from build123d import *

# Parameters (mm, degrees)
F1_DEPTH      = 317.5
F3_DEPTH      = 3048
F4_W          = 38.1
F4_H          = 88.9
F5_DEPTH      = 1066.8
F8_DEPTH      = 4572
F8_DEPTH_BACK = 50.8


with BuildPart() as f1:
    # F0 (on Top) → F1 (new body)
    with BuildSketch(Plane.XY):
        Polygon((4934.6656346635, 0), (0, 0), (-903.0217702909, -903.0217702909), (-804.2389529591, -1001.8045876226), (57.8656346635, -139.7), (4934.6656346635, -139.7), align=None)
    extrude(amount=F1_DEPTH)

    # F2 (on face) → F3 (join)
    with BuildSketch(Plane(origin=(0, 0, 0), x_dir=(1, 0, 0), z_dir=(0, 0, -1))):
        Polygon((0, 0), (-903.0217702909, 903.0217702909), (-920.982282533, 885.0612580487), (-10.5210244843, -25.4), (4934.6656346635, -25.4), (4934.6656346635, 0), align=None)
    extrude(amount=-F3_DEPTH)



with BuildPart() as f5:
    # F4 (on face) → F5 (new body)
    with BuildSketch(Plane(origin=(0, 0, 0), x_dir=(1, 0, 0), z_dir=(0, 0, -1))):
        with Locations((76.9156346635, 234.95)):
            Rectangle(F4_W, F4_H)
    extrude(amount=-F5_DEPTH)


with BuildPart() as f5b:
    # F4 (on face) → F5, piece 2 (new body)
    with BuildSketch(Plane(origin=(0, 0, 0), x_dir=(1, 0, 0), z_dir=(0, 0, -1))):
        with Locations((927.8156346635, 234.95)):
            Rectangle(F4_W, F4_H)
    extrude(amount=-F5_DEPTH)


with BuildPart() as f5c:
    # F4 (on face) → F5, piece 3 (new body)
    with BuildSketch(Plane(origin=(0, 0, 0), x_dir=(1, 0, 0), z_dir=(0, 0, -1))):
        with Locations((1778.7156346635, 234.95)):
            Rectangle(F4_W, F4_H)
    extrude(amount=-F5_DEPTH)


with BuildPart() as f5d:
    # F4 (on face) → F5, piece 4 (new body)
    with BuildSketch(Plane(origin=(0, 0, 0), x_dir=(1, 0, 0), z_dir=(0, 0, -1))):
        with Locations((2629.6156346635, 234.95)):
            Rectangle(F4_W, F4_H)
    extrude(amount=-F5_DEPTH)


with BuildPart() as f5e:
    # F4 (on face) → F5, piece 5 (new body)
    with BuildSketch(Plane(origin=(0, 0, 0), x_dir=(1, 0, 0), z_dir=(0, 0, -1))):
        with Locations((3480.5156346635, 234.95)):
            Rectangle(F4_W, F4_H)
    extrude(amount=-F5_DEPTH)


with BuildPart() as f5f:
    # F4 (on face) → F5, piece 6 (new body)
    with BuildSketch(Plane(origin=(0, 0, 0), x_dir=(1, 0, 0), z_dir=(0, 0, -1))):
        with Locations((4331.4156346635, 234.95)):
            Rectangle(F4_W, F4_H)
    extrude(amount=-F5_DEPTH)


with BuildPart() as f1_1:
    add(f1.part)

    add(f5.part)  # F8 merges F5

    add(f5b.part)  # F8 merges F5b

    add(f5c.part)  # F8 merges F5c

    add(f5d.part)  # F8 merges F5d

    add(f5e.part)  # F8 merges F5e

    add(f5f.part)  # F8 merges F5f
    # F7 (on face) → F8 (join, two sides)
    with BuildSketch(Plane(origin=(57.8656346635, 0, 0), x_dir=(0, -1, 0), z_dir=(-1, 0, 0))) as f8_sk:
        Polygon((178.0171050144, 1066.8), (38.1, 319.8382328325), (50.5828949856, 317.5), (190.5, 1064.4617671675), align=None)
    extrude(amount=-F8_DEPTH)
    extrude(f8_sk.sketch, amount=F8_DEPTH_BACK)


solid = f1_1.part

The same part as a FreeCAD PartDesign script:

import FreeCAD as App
import Part
import Sketcher
Q = App.Units.Quantity

doc = App.newDocument("Part")
body = doc.addObject("PartDesign::Body", "Body")

# Sketch on XY plane
sketch1 = body.newObject("Sketcher::SketchObject", "Sketch")
sketch1.AttachmentSupport = (doc.getObject("XY_Plane"), [""])
sketch1.MapMode = "FlatFace"
sketch1.addGeometry([
    Part.LineSegment(App.Vector(4934.665635, 0, 0), App.Vector(0, 0, 0)),  # 0
    Part.LineSegment(App.Vector(0, 0, 0), App.Vector(-903.02177, -903.02177, 0)),  # 1
    Part.LineSegment(App.Vector(-903.02177, -903.02177, 0), App.Vector(-804.238953, -1001.804588, 0)),  # 2
    Part.LineSegment(App.Vector(-804.238953, -1001.804588, 0), App.Vector(57.865635, -139.7, 0)),  # 3
    Part.LineSegment(App.Vector(57.865635, -139.7, 0), App.Vector(4934.665635, -139.7, 0)),  # 4
    Part.LineSegment(App.Vector(4934.665635, -139.7, 0), App.Vector(4934.665635, 0, 0)),  # 5
], False)
sketch1.addConstraint([
    Sketcher.Constraint("Coincident", 0, 2, 1, 1),
    Sketcher.Constraint("Coincident", 1, 2, 2, 1),
    Sketcher.Constraint("Coincident", 2, 2, 3, 1),
    Sketcher.Constraint("Coincident", 3, 2, 4, 1),
    Sketcher.Constraint("Coincident", 4, 2, 5, 1),
    Sketcher.Constraint("Coincident", 5, 2, 0, 1),
    Sketcher.Constraint("Horizontal", 0),
    Sketcher.Constraint("Horizontal", 4),
    Sketcher.Constraint("Vertical", 5),
    Sketcher.Constraint("Coincident", 0, 2, -1, 1),
    Sketcher.Constraint("Perpendicular", 1, 2),
    Sketcher.Constraint("Perpendicular", 2, 3),
    Sketcher.Constraint("DistanceX", 4, 1, 4, 2, Q("192 in")),
    Sketcher.Constraint("Distance", 3, Q("48 in")),
    Sketcher.Constraint("DistanceY", 5, 1, 5, 2, Q("5.5 in")),
    Sketcher.Constraint("Angle", 1, Q("-135 deg")),
    Sketcher.Constraint("Distance", 2, Q("5.5 in")),
])
pad1 = body.newObject("PartDesign::Pad", "Pad")
pad1.Profile = sketch1
pad1.Length = Q("12.5 in")

# Sketch on XY plane
sketch2 = body.newObject("Sketcher::SketchObject", "Sketch001")
sketch2.AttachmentSupport = (doc.getObject("XY_Plane"), [""])
sketch2.MapMode = "FlatFace"
sketch2.addGeometry([
    Part.LineSegment(App.Vector(0, 0, 0), App.Vector(-903.02177, -903.02177, 0)),  # 0
    Part.LineSegment(App.Vector(-903.02177, -903.02177, 0), App.Vector(-920.982283, -885.061258, 0)),  # 1
    Part.LineSegment(App.Vector(-920.982283, -885.061258, 0), App.Vector(-10.521024, 25.4, 0)),  # 2
    Part.LineSegment(App.Vector(-10.521024, 25.4, 0), App.Vector(4934.665635, 25.4, 0)),  # 3
    Part.LineSegment(App.Vector(4934.665635, 25.4, 0), App.Vector(4934.665635, 0, 0)),  # 4
    Part.LineSegment(App.Vector(4934.665635, 0, 0), App.Vector(0, 0, 0)),  # 5
], False)
sketch2.addConstraint([
    Sketcher.Constraint("Coincident", 0, 2, 1, 1),
    Sketcher.Constraint("Coincident", 1, 2, 2, 1),
    Sketcher.Constraint("Coincident", 2, 2, 3, 1),
    Sketcher.Constraint("Coincident", 3, 2, 4, 1),
    Sketcher.Constraint("Coincident", 4, 2, 5, 1),
    Sketcher.Constraint("Coincident", 5, 2, 0, 1),
    Sketcher.Constraint("Horizontal", 3),
    Sketcher.Constraint("Vertical", 4),
    Sketcher.Constraint("Horizontal", 5),
    Sketcher.Constraint("Coincident", 5, 2, -1, 1),
    Sketcher.Constraint("Perpendicular", 0, 1),
    Sketcher.Constraint("Perpendicular", 1, 2),
    Sketcher.Constraint("DistanceY", 4, 2, 4, 1, Q("1 in")),
    Sketcher.Constraint("Distance", 1, Q("1 in")),
    Sketcher.Constraint("Angle", 0, Q("-135 deg")),
    Sketcher.Constraint("DistanceX", 3, 1, 3, 2, 4945.186659),
    Sketcher.Constraint("Distance", 2, 1287.586659),
])
pad2 = body.newObject("PartDesign::Pad", "Pad001")
pad2.Profile = sketch2
pad2.Length = Q("120 in")
body2 = doc.addObject("PartDesign::Body", "Body001")

# Sketch on XY plane
sketch3 = body2.newObject("Sketcher::SketchObject", "Sketch002")
sketch3.AttachmentSupport = (doc.getObject("XY_Plane001"), [""])
sketch3.MapMode = "FlatFace"
sketch3.addGeometry([
    Part.LineSegment(App.Vector(57.865635, -279.4, 0), App.Vector(57.865635, -190.5, 0)),
    Part.LineSegment(App.Vector(57.865635, -190.5, 0), App.Vector(95.965635, -190.5, 0)),
    Part.LineSegment(App.Vector(95.965635, -190.5, 0), App.Vector(95.965635, -279.4, 0)),
    Part.LineSegment(App.Vector(95.965635, -279.4, 0), App.Vector(57.865635, -279.4, 0)),
], False)
sketch3.addConstraint([
    Sketcher.Constraint("Coincident", 0, 2, 1, 1),
    Sketcher.Constraint("Coincident", 1, 2, 2, 1),
    Sketcher.Constraint("Coincident", 2, 2, 3, 1),
    Sketcher.Constraint("Coincident", 3, 2, 0, 1),
    Sketcher.Constraint("Vertical", 0),
    Sketcher.Constraint("Horizontal", 1),
    Sketcher.Constraint("Vertical", 2),
    Sketcher.Constraint("Horizontal", 3),
    Sketcher.Constraint("DistanceX", 1, 1, 1, 2, Q("1.5 in")),
    Sketcher.Constraint("DistanceY", 0, 1, 0, 2, Q("3.5 in")),
    Sketcher.Constraint("DistanceY", 2, 2, -1, 1, Q("11 in")),
    Sketcher.Constraint("DistanceX", -1, 1, 0, 2, 57.865635),
])
pad3 = body2.newObject("PartDesign::Pad", "Pad002")
pad3.Profile = sketch3
pad3.Length = Q("42 in")
body3 = doc.addObject("PartDesign::Body", "Body002")

# Sketch on XY plane
sketch4 = body3.newObject("Sketcher::SketchObject", "Sketch003")
sketch4.AttachmentSupport = (doc.getObject("XY_Plane002"), [""])
sketch4.MapMode = "FlatFace"
sketch4.addGeometry([
    Part.LineSegment(App.Vector(908.765635, -279.4, 0), App.Vector(908.765635, -190.5, 0)),
    Part.LineSegment(App.Vector(908.765635, -190.5, 0), App.Vector(946.865635, -190.5, 0)),
    Part.LineSegment(App.Vector(946.865635, -190.5, 0), App.Vector(946.865635, -279.4, 0)),
    Part.LineSegment(App.Vector(946.865635, -279.4, 0), App.Vector(908.765635, -279.4, 0)),
], False)
sketch4.addConstraint([
    Sketcher.Constraint("Coincident", 0, 2, 1, 1),
    Sketcher.Constraint("Coincident", 1, 2, 2, 1),
    Sketcher.Constraint("Coincident", 2, 2, 3, 1),
    Sketcher.Constraint("Coincident", 3, 2, 0, 1),
    Sketcher.Constraint("Vertical", 0),
    Sketcher.Constraint("Horizontal", 1),
    Sketcher.Constraint("Vertical", 2),
    Sketcher.Constraint("Horizontal", 3),
    Sketcher.Constraint("DistanceX", 1, 1, 1, 2, Q("1.5 in")),
    Sketcher.Constraint("DistanceY", 0, 1, 0, 2, Q("3.5 in")),
    Sketcher.Constraint("DistanceY", 2, 2, -1, 1, Q("11 in")),
    Sketcher.Constraint("DistanceX", -1, 1, 0, 2, 908.765635),
])
pad4 = body3.newObject("PartDesign::Pad", "Pad003")
pad4.Profile = sketch4
pad4.Length = Q("42 in")
body4 = doc.addObject("PartDesign::Body", "Body003")

# Sketch on XY plane
sketch5 = body4.newObject("Sketcher::SketchObject", "Sketch004")
sketch5.AttachmentSupport = (doc.getObject("XY_Plane003"), [""])
sketch5.MapMode = "FlatFace"
sketch5.addGeometry([
    Part.LineSegment(App.Vector(1759.665635, -279.4, 0), App.Vector(1759.665635, -190.5, 0)),
    Part.LineSegment(App.Vector(1759.665635, -190.5, 0), App.Vector(1797.765635, -190.5, 0)),
    Part.LineSegment(App.Vector(1797.765635, -190.5, 0), App.Vector(1797.765635, -279.4, 0)),
    Part.LineSegment(App.Vector(1797.765635, -279.4, 0), App.Vector(1759.665635, -279.4, 0)),
], False)
sketch5.addConstraint([
    Sketcher.Constraint("Coincident", 0, 2, 1, 1),
    Sketcher.Constraint("Coincident", 1, 2, 2, 1),
    Sketcher.Constraint("Coincident", 2, 2, 3, 1),
    Sketcher.Constraint("Coincident", 3, 2, 0, 1),
    Sketcher.Constraint("Vertical", 0),
    Sketcher.Constraint("Horizontal", 1),
    Sketcher.Constraint("Vertical", 2),
    Sketcher.Constraint("Horizontal", 3),
    Sketcher.Constraint("DistanceX", 1, 1, 1, 2, Q("1.5 in")),
    Sketcher.Constraint("DistanceY", 0, 1, 0, 2, Q("3.5 in")),
    Sketcher.Constraint("DistanceY", 2, 2, -1, 1, Q("11 in")),
    Sketcher.Constraint("DistanceX", -1, 1, 0, 2, 1759.665635),
])
pad5 = body4.newObject("PartDesign::Pad", "Pad004")
pad5.Profile = sketch5
pad5.Length = Q("42 in")
body5 = doc.addObject("PartDesign::Body", "Body004")

# Sketch on XY plane
sketch6 = body5.newObject("Sketcher::SketchObject", "Sketch005")
sketch6.AttachmentSupport = (doc.getObject("XY_Plane004"), [""])
sketch6.MapMode = "FlatFace"
sketch6.addGeometry([
    Part.LineSegment(App.Vector(2610.565635, -279.4, 0), App.Vector(2610.565635, -190.5, 0)),
    Part.LineSegment(App.Vector(2610.565635, -190.5, 0), App.Vector(2648.665635, -190.5, 0)),
    Part.LineSegment(App.Vector(2648.665635, -190.5, 0), App.Vector(2648.665635, -279.4, 0)),
    Part.LineSegment(App.Vector(2648.665635, -279.4, 0), App.Vector(2610.565635, -279.4, 0)),
], False)
sketch6.addConstraint([
    Sketcher.Constraint("Coincident", 0, 2, 1, 1),
    Sketcher.Constraint("Coincident", 1, 2, 2, 1),
    Sketcher.Constraint("Coincident", 2, 2, 3, 1),
    Sketcher.Constraint("Coincident", 3, 2, 0, 1),
    Sketcher.Constraint("Vertical", 0),
    Sketcher.Constraint("Horizontal", 1),
    Sketcher.Constraint("Vertical", 2),
    Sketcher.Constraint("Horizontal", 3),
    Sketcher.Constraint("DistanceX", 1, 1, 1, 2, Q("1.5 in")),
    Sketcher.Constraint("DistanceY", 0, 1, 0, 2, Q("3.5 in")),
    Sketcher.Constraint("DistanceY", 2, 2, -1, 1, Q("11 in")),
    Sketcher.Constraint("DistanceX", -1, 1, 0, 2, 2610.565635),
])
pad6 = body5.newObject("PartDesign::Pad", "Pad005")
pad6.Profile = sketch6
pad6.Length = Q("42 in")
body6 = doc.addObject("PartDesign::Body", "Body005")

# Sketch on XY plane
sketch7 = body6.newObject("Sketcher::SketchObject", "Sketch006")
sketch7.AttachmentSupport = (doc.getObject("XY_Plane005"), [""])
sketch7.MapMode = "FlatFace"
sketch7.addGeometry([
    Part.LineSegment(App.Vector(3461.465635, -279.4, 0), App.Vector(3461.465635, -190.5, 0)),
    Part.LineSegment(App.Vector(3461.465635, -190.5, 0), App.Vector(3499.565635, -190.5, 0)),
    Part.LineSegment(App.Vector(3499.565635, -190.5, 0), App.Vector(3499.565635, -279.4, 0)),
    Part.LineSegment(App.Vector(3499.565635, -279.4, 0), App.Vector(3461.465635, -279.4, 0)),
], False)
sketch7.addConstraint([
    Sketcher.Constraint("Coincident", 0, 2, 1, 1),
    Sketcher.Constraint("Coincident", 1, 2, 2, 1),
    Sketcher.Constraint("Coincident", 2, 2, 3, 1),
    Sketcher.Constraint("Coincident", 3, 2, 0, 1),
    Sketcher.Constraint("Vertical", 0),
    Sketcher.Constraint("Horizontal", 1),
    Sketcher.Constraint("Vertical", 2),
    Sketcher.Constraint("Horizontal", 3),
    Sketcher.Constraint("DistanceX", 1, 1, 1, 2, Q("1.5 in")),
    Sketcher.Constraint("DistanceY", 0, 1, 0, 2, Q("3.5 in")),
    Sketcher.Constraint("DistanceY", 2, 2, -1, 1, Q("11 in")),
    Sketcher.Constraint("DistanceX", -1, 1, 0, 2, 3461.465635),
])
pad7 = body6.newObject("PartDesign::Pad", "Pad006")
pad7.Profile = sketch7
pad7.Length = Q("42 in")
body7 = doc.addObject("PartDesign::Body", "Body006")

# Sketch on XY plane
sketch8 = body7.newObject("Sketcher::SketchObject", "Sketch007")
sketch8.AttachmentSupport = (doc.getObject("XY_Plane006"), [""])
sketch8.MapMode = "FlatFace"
sketch8.addGeometry([
    Part.LineSegment(App.Vector(4312.365635, -279.4, 0), App.Vector(4312.365635, -190.5, 0)),
    Part.LineSegment(App.Vector(4312.365635, -190.5, 0), App.Vector(4350.465635, -190.5, 0)),
    Part.LineSegment(App.Vector(4350.465635, -190.5, 0), App.Vector(4350.465635, -279.4, 0)),
    Part.LineSegment(App.Vector(4350.465635, -279.4, 0), App.Vector(4312.365635, -279.4, 0)),
], False)
sketch8.addConstraint([
    Sketcher.Constraint("Coincident", 0, 2, 1, 1),
    Sketcher.Constraint("Coincident", 1, 2, 2, 1),
    Sketcher.Constraint("Coincident", 2, 2, 3, 1),
    Sketcher.Constraint("Coincident", 3, 2, 0, 1),
    Sketcher.Constraint("Vertical", 0),
    Sketcher.Constraint("Horizontal", 1),
    Sketcher.Constraint("Vertical", 2),
    Sketcher.Constraint("Horizontal", 3),
    Sketcher.Constraint("DistanceX", 1, 1, 1, 2, Q("1.5 in")),
    Sketcher.Constraint("DistanceY", 0, 1, 0, 2, Q("3.5 in")),
    Sketcher.Constraint("DistanceY", 2, 2, -1, 1, Q("11 in")),
    Sketcher.Constraint("DistanceX", -1, 1, 0, 2, 4312.365635),
])
pad8 = body7.newObject("PartDesign::Pad", "Pad007")
pad8.Profile = sketch8
pad8.Length = Q("42 in")
body.AllowCompound = True
doc.recompute()

boolean = body.newObject("PartDesign::Boolean", "Boolean")
boolean.Type = "Fuse"
boolean.addObjects([body2])
doc.recompute()

boolean2 = body.newObject("PartDesign::Boolean", "Boolean001")
boolean2.Type = "Fuse"
boolean2.addObjects([body3])
doc.recompute()

boolean3 = body.newObject("PartDesign::Boolean", "Boolean002")
boolean3.Type = "Fuse"
boolean3.addObjects([body4])
doc.recompute()

boolean4 = body.newObject("PartDesign::Boolean", "Boolean003")
boolean4.Type = "Fuse"
boolean4.addObjects([body5])
doc.recompute()

boolean5 = body.newObject("PartDesign::Boolean", "Boolean004")
boolean5.Type = "Fuse"
boolean5.addObjects([body6])
doc.recompute()

boolean6 = body.newObject("PartDesign::Boolean", "Boolean005")
boolean6.Type = "Fuse"
boolean6.addObjects([body7])

# Sketch on YZ plane
sketch9 = body.newObject("Sketcher::SketchObject", "Sketch008")
sketch9.AttachmentSupport = (doc.getObject("YZ_Plane"), [""])
sketch9.MapMode = "FlatFace"
sketch9.AttachmentOffset = App.Placement(App.Vector(0, 0, 57.865635), App.Rotation())
sketch9.addGeometry([
    Part.LineSegment(App.Vector(-178.017105, 1066.8, 0), App.Vector(-38.1, 319.838233, 0)),
    Part.LineSegment(App.Vector(-38.1, 319.838233, 0), App.Vector(-50.582895, 317.5, 0)),
    Part.LineSegment(App.Vector(-50.582895, 317.5, 0), App.Vector(-190.5, 1064.461767, 0)),
    Part.LineSegment(App.Vector(-190.5, 1064.461767, 0), App.Vector(-178.017105, 1066.8, 0)),
], False)
sketch9.addConstraint([
    Sketcher.Constraint("Coincident", 0, 2, 1, 1),
    Sketcher.Constraint("Coincident", 1, 2, 2, 1),
    Sketcher.Constraint("Coincident", 2, 2, 3, 1),
    Sketcher.Constraint("Coincident", 3, 2, 0, 1),
    Sketcher.Constraint("Perpendicular", 0, 1),
    Sketcher.Constraint("Perpendicular", 1, 2),
    Sketcher.Constraint("Perpendicular", 2, 3),
    Sketcher.Constraint("DistanceY", -1, 1, 3, 2, Q("42 in")),
    Sketcher.Constraint("DistanceX", 2, 2, 0, 2, Q("6 in")),
    Sketcher.Constraint("Distance", 1, Q("0.5 in")),
    Sketcher.Constraint("DistanceX", 0, 2, -1, 1, Q("1.5 in")),
    Sketcher.Constraint("DistanceY", -1, 1, 1, 2, Q("12.5 in")),
])
pad9 = body.newObject("PartDesign::Pad", "Pad008")
pad9.Profile = sketch9
pad9.Type = "TwoLengths"
pad9.Length = Q("180 in")
pad9.Length2 = Q("2 in")

doc.recompute()
